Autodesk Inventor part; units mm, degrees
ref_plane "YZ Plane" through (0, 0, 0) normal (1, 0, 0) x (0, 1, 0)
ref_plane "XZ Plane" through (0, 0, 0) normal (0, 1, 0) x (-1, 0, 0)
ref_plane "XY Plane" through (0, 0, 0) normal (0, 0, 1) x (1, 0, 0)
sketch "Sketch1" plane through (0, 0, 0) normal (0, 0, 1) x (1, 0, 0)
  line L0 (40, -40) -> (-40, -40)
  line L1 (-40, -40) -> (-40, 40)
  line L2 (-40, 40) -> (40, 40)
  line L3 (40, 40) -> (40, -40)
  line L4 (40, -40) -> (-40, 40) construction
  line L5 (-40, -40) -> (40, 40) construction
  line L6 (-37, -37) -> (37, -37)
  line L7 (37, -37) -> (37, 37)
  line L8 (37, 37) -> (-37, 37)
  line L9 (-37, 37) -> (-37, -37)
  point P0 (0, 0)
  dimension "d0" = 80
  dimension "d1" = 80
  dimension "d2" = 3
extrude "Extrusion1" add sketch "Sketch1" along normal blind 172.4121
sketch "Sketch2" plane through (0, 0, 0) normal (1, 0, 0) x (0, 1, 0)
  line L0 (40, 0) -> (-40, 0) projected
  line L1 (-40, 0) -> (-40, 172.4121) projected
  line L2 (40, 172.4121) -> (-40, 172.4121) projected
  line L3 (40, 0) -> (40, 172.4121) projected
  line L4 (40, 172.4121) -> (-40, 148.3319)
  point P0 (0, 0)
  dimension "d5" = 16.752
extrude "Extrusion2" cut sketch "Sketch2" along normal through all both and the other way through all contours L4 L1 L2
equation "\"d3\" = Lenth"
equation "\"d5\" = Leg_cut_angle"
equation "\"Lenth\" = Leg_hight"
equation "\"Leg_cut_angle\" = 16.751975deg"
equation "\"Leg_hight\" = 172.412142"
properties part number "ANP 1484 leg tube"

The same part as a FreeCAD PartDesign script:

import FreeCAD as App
import Part
import Sketcher

V = App.Vector
Q = App.Units.Quantity

doc = App.newDocument("Part")
body = doc.addObject("PartDesign::Body", "Body")

sketch1 = body.newObject("Sketcher::SketchObject", "Sketch")
sketch1.AttachmentSupport = (doc.getObject("XY_Plane"), [""])
sketch1.MapMode = "FlatFace"
sketch1.addGeometry(Part.LineSegment(V(-40, -40, 0), V(40, -40, 0)), False)
sketch1.addGeometry(Part.LineSegment(V(40, -40, 0), V(40, 40, 0)), False)
sketch1.addGeometry(Part.LineSegment(V(40, 40, 0), V(-40, 40, 0)), False)
sketch1.addGeometry(Part.LineSegment(V(-40, 40, 0), V(-40, -40, 0)), False)
sketch1.addGeometry(Part.LineSegment(V(37, -37, 0), V(-37, -37, 0)), False)
sketch1.addGeometry(Part.LineSegment(V(-37, -37, 0), V(-37, 37, 0)), False)
sketch1.addGeometry(Part.LineSegment(V(-37, 37, 0), V(37, 37, 0)), False)
sketch1.addGeometry(Part.LineSegment(V(37, 37, 0), V(37, -37, 0)), False)
sketch1.addConstraint(Sketcher.Constraint("Coincident", 0, 2, 1, 1))
sketch1.addConstraint(Sketcher.Constraint("Coincident", 1, 2, 2, 1))
sketch1.addConstraint(Sketcher.Constraint("Coincident", 2, 2, 3, 1))
sketch1.addConstraint(Sketcher.Constraint("Coincident", 3, 2, 0, 1))
sketch1.addConstraint(Sketcher.Constraint("Coincident", 4, 2, 5, 1))
sketch1.addConstraint(Sketcher.Constraint("Coincident", 5, 2, 6, 1))
sketch1.addConstraint(Sketcher.Constraint("Coincident", 6, 2, 7, 1))
sketch1.addConstraint(Sketcher.Constraint("Coincident", 7, 2, 4, 1))
sketch1.addConstraint(Sketcher.Constraint("Horizontal", 0))
sketch1.addConstraint(Sketcher.Constraint("Vertical", 1))
sketch1.addConstraint(Sketcher.Constraint("Horizontal", 2))
sketch1.addConstraint(Sketcher.Constraint("Vertical", 3))
sketch1.addConstraint(Sketcher.Constraint("Horizontal", 4))
sketch1.addConstraint(Sketcher.Constraint("Vertical", 5))
sketch1.addConstraint(Sketcher.Constraint("Horizontal", 6))
sketch1.addConstraint(Sketcher.Constraint("Vertical", 7))
sketch1.addConstraint(Sketcher.Constraint("Symmetric", 0, 2, 2, 2, -1, 1))
sketch1.addConstraint(Sketcher.Constraint("Symmetric", 4, 2, 6, 2, -1, 1))
sketch1.addConstraint(Sketcher.Constraint("Equal", 2, 1))
sketch1.addConstraint(Sketcher.Constraint("Equal", 6, 5))
sketch1.addConstraint(Sketcher.Constraint("DistanceX", 0, 1, 0, 2, Q("80 mm")))
sketch1.addConstraint(Sketcher.Constraint("DistanceX", 3, 2, 4, 2, Q("3 mm")))
pad1 = body.newObject("PartDesign::Pad", "Pad")
pad1.Profile = sketch1
pad1.Length = 172.4121

sketch2 = body.newObject("Sketcher::SketchObject", "Sketch001")
sketch2.AttachmentSupport = (doc.getObject("YZ_Plane"), [""])
sketch2.MapMode = "FlatFace"
sketch2.addGeometry(Part.LineSegment(V(-40, 148, 0), V(40, 172, 0)), False)
sketch2.addGeometry(Part.LineSegment(V(40, 172, 0), V(-40, 172, 0)), False)
sketch2.addGeometry(Part.LineSegment(V(-40, 172, 0), V(-40, 148, 0)), False)
sketch2.addConstraint(Sketcher.Constraint("Coincident", 0, 2, 1, 1))
sketch2.addConstraint(Sketcher.Constraint("Coincident", 1, 2, 2, 1))
sketch2.addConstraint(Sketcher.Constraint("Coincident", 2, 2, 0, 1))
sketch2.addConstraint(Sketcher.Constraint("Horizontal", 1))
sketch2.addConstraint(Sketcher.Constraint("Vertical", 2))
sketch2.addConstraint(Sketcher.Constraint("DistanceX", 1, 2, 1, 1, Q("80 mm")))
sketch2.addConstraint(Sketcher.Constraint("DistanceX", -1, 1, 0, 2, Q("40 mm")))
sketch2.addConstraint(Sketcher.Constraint("DistanceY", 2, 2, 2, 1, Q("24.0802 mm")))
sketch2.addConstraint(Sketcher.Constraint("DistanceY", -1, 1, 0, 2, Q("172.412 mm")))
pocket1 = body.newObject("PartDesign::Pocket", "Pocket")
pocket1.Profile = sketch2
pocket1.Type = "ThroughAll"
pocket1.Midplane = True

doc.recompute()
